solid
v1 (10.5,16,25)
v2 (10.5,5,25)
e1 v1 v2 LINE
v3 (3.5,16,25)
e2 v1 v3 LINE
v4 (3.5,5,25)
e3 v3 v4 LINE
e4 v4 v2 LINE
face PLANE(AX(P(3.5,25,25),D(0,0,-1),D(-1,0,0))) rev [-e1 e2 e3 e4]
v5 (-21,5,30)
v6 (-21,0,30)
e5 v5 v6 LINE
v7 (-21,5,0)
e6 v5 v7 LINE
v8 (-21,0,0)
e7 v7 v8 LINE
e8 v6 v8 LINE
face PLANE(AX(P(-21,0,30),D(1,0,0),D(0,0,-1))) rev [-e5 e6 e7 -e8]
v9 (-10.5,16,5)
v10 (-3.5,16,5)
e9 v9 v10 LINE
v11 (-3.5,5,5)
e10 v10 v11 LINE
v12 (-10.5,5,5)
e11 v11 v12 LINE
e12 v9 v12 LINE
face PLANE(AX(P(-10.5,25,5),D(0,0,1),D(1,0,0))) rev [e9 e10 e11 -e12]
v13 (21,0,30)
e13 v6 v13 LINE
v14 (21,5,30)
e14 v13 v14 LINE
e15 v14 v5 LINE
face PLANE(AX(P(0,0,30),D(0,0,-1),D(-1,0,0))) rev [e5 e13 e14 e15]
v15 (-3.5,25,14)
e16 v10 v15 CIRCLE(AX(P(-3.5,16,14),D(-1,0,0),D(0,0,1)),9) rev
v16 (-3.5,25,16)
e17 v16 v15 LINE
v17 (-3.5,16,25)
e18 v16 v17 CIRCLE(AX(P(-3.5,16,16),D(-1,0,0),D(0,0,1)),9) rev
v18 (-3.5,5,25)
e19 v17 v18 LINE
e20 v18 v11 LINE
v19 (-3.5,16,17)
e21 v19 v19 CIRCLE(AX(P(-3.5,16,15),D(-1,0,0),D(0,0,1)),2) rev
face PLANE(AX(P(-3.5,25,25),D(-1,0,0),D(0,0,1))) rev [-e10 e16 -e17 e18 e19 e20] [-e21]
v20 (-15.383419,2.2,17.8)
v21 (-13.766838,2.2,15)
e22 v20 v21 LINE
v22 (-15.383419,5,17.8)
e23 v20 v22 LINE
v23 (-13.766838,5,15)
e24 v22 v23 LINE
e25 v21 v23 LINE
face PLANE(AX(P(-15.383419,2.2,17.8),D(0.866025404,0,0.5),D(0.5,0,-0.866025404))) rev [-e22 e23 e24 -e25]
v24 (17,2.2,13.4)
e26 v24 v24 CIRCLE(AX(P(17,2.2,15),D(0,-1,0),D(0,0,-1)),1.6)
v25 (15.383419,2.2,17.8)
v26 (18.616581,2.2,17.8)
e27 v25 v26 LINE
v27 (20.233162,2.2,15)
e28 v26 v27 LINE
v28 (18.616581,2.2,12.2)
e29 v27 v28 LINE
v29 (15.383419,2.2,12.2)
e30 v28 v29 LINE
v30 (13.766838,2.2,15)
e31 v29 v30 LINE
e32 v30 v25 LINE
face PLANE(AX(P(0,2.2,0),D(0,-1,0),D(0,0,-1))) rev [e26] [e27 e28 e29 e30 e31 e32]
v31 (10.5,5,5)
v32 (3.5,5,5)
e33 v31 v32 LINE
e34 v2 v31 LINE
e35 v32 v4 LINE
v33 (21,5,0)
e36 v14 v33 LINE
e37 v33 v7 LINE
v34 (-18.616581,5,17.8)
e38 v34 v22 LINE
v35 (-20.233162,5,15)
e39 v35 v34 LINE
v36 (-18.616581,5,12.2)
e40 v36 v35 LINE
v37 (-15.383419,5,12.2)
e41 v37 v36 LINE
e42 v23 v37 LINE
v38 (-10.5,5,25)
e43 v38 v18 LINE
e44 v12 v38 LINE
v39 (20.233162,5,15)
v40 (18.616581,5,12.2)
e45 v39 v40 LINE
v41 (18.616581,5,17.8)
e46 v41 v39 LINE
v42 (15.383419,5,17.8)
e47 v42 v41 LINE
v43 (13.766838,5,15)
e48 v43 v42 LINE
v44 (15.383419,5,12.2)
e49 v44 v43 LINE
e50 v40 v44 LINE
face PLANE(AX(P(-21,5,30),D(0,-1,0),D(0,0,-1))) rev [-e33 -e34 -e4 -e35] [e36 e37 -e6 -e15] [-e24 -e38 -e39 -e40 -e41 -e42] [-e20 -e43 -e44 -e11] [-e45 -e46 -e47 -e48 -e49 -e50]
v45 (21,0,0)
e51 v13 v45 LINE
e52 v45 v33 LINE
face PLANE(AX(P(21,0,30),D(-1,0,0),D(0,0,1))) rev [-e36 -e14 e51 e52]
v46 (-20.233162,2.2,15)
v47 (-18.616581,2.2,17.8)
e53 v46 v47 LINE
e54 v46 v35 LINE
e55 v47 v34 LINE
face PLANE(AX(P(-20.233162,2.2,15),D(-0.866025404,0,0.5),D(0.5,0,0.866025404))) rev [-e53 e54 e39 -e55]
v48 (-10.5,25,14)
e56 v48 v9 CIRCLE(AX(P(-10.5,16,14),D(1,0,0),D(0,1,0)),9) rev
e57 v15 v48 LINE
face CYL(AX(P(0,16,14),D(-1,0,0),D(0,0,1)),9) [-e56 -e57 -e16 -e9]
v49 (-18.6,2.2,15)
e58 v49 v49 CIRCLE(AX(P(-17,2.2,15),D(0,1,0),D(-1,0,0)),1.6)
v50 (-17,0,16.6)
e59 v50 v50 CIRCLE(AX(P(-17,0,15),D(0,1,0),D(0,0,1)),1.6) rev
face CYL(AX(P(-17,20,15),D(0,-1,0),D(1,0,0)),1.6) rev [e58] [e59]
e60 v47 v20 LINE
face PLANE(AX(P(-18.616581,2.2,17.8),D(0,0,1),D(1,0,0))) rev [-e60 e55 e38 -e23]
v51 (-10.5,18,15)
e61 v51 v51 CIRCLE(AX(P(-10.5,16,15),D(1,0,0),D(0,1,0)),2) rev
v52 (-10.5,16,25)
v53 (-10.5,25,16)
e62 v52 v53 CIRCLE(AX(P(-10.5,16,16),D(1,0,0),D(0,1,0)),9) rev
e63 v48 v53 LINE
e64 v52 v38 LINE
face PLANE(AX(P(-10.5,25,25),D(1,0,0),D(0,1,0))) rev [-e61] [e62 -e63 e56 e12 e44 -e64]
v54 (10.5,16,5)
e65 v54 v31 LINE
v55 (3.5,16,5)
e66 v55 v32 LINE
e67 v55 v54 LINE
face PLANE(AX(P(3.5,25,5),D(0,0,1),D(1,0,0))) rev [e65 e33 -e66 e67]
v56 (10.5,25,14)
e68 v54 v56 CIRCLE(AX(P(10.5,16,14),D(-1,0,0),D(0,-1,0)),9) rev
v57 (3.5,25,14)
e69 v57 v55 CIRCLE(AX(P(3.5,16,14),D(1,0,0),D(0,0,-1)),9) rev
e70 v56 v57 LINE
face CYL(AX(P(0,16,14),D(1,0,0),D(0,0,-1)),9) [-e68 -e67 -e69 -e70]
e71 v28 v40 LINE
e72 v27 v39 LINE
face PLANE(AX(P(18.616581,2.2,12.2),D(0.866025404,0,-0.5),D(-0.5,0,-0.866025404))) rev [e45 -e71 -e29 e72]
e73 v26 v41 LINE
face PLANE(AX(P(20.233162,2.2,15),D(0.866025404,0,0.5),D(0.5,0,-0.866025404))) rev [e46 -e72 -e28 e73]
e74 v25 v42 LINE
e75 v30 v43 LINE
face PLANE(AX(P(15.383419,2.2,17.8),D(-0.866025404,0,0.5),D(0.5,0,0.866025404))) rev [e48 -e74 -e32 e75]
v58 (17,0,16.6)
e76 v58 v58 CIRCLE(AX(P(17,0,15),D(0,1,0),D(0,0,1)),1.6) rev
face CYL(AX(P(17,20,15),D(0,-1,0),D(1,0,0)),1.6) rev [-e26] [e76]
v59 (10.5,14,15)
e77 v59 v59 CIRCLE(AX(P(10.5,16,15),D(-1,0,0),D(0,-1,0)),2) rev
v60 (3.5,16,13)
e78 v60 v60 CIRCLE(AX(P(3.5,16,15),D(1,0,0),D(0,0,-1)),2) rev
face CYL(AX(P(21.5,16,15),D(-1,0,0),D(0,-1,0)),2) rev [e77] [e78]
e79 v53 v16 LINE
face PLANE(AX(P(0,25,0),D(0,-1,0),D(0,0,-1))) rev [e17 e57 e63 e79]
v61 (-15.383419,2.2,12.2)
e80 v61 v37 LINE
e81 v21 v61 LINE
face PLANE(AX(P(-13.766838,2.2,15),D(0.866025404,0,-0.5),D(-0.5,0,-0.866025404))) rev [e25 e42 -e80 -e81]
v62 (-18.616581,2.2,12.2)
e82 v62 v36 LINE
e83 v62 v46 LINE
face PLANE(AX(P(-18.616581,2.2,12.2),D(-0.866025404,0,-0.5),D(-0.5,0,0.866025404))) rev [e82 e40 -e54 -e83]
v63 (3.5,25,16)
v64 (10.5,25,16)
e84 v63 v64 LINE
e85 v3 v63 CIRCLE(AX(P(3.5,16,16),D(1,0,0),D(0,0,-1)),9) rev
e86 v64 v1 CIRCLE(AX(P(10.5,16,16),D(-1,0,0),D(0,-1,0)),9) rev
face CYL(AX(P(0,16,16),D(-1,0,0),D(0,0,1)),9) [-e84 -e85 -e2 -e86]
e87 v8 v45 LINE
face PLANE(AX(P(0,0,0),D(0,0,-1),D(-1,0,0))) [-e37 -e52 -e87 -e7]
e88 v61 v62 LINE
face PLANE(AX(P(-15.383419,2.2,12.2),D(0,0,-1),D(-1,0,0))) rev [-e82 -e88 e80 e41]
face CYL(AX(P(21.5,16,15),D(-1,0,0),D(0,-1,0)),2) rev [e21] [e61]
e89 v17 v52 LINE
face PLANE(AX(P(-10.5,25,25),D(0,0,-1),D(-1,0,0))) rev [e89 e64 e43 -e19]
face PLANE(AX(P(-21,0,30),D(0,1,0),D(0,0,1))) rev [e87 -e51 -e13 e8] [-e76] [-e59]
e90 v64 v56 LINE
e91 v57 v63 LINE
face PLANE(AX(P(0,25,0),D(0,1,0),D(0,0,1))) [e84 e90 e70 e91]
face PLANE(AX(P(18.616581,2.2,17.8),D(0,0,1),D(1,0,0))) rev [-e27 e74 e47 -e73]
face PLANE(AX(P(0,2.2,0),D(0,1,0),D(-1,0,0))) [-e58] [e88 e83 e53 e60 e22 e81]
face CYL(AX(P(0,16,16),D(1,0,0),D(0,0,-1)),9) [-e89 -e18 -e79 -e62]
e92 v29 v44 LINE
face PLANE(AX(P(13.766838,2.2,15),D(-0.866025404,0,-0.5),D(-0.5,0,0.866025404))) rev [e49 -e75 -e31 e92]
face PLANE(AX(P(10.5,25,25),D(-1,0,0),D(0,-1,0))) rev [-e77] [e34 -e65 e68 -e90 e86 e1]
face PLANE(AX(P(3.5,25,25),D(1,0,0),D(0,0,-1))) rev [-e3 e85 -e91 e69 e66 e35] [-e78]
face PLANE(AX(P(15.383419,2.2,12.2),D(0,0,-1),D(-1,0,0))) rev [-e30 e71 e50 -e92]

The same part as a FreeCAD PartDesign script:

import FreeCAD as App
import Part
import Sketcher

V = App.Vector
Q = App.Units.Quantity


def edges_at(feature, points):
    """Names of the edges that pass closest to the given points."""
    edges = feature.Shape.Edges
    near = lambda p: min(range(len(edges)), key=lambda i: edges[i].distToShape(Part.Vertex(*p))[0])
    return sorted({f"Edge{near(p) + 1}" for p in points})


def add_polygon(sketch, points):
    """Adds a closed chain of lines whose ends are joined by coincident constraints."""
    first, n = sketch.GeometryCount, len(points)
    for a, b in zip(points, points[1:] + points[:1]):
        sketch.addGeometry(Part.LineSegment(App.Vector(*a, 0), App.Vector(*b, 0)), False)
    for i in range(n):
        sketch.addConstraint(Sketcher.Constraint("Coincident", first + i, 2, first + (i + 1) % n, 1))

doc = App.newDocument("Part")
body = doc.addObject("PartDesign::Body", "Body")

sketch1 = doc.addObject("Sketcher::SketchObject", "Sketch")
body.addObject(sketch1)
sketch1.AttachmentSupport = (doc.XY_Plane, [""])
sketch1.MapMode = "FlatFace"
add_polygon(sketch1, [(-21, 5), (-21, 0), (21, 0), (21, 5)])
sketch1.addConstraint(Sketcher.Constraint("Vertical", 0))
sketch1.addConstraint(Sketcher.Constraint("Horizontal", 1))
sketch1.addConstraint(Sketcher.Constraint("Vertical", 2))
sketch1.addConstraint(Sketcher.Constraint("Horizontal", 3))
sketch1.addConstraint(Sketcher.Constraint("Symmetric", 0, 2, 1, 2, -1, 1))
sketch1.addConstraint(Sketcher.Constraint("DistanceX", 1, 1, 1, 2, Q("42 mm")))
sketch1.addConstraint(Sketcher.Constraint("DistanceY", 0, 2, 0, 1, Q("5 mm")))
pad1 = doc.addObject("PartDesign::Pad", "Pad")
body.addObject(pad1)
pad1.Profile = sketch1
pad1.Length = 30

sketch2 = doc.addObject("Sketcher::SketchObject", "Sketch001")
body.addObject(sketch2)
sketch2.AttachmentSupport = (doc.XZ_Plane, [""])
sketch2.MapMode = "FlatFace"
sketch2.AttachmentOffset = App.Placement(V(0, 0, -5), App.Rotation())
sketch2.addGeometry(Part.Circle(V(-17, 15, 0), V(0, 0, 1), 1.6), False)
sketch2.addGeometry(Part.Circle(V(17, 15, 0), V(0, 0, 1), 1.6), False)
sketch2.addConstraint(Sketcher.Constraint("Equal", 0, 1))
sketch2.addConstraint(Sketcher.Constraint("Symmetric", 0, 3, 1, 3, -2))
sketch2.addConstraint(Sketcher.Constraint("Diameter", 0, Q("3.2 mm")))
sketch2.addConstraint(Sketcher.Constraint("DistanceX", 0, 3, -1, 1, Q("17 mm")))
sketch2.addConstraint(Sketcher.Constraint("DistanceY", -1, 1, 0, 3, Q("15 mm")))
pocket1 = doc.addObject("PartDesign::Pocket", "Pocket")
body.addObject(pocket1)
pocket1.Profile = sketch2
pocket1.Type = "ThroughAll"
pocket1.Midplane = True

sketch3 = doc.addObject("Sketcher::SketchObject", "Sketch002")
body.addObject(sketch3)
sketch3.AttachmentSupport = (doc.XZ_Plane, [""])
sketch3.MapMode = "FlatFace"
sketch3.AttachmentOffset = App.Placement(V(0, 0, -5), App.Rotation())
add_polygon(sketch3, [(13.8, 15), (15.4, 17.8), (18.6, 17.8), (20.2, 15), (18.6, 12.2), (15.4, 12.2)])
add_polygon(sketch3, [(-13.8, 15), (-15.4, 12.2), (-18.6, 12.2), (-20.2, 15), (-18.6, 17.8), (-15.4, 17.8)])
sketch3.addConstraint(Sketcher.Constraint("Horizontal", 1))
sketch3.addConstraint(Sketcher.Constraint("Horizontal", 4))
sketch3.addConstraint(Sketcher.Constraint("Horizontal", 7))
sketch3.addConstraint(Sketcher.Constraint("Horizontal", 10))
sketch3.addConstraint(Sketcher.Constraint("Symmetric", 4, 2, 6, 2, -2))
sketch3.addConstraint(Sketcher.Constraint("Symmetric", 2, 2, 8, 2, -2))
sketch3.addConstraint(Sketcher.Constraint("Symmetric", 1, 2, 9, 2, -2))
sketch3.addConstraint(Sketcher.Constraint("Symmetric", 5, 2, 11, 2, -2))
sketch3.addConstraint(Sketcher.Constraint("Parallel", 0, 3))
sketch3.addConstraint(Sketcher.Constraint("Parallel", 2, 5))
sketch3.addConstraint(Sketcher.Constraint("Parallel", 3, 6))
sketch3.addConstraint(Sketcher.Constraint("Parallel", 5, 8))
sketch3.addConstraint(Sketcher.Constraint("Parallel", 8, 11))
sketch3.addConstraint(Sketcher.Constraint("Horizontal", 2, 2, 5, 2))
sketch3.addConstraint(Sketcher.Constraint("Vertical", 1, 2, 3, 2))
sketch3.addConstraint(Sketcher.Constraint("Angle", 0, Q("60 deg")))
sketch3.addConstraint(Sketcher.Constraint("DistanceY", -1, 1, 2, 2, Q("15 mm")))
sketch3.addConstraint(Sketcher.Constraint("DistanceX", 6, 2, 3, 2, Q("34 mm")))
sketch3.addConstraint(Sketcher.Constraint("DistanceY", -1, 1, 0, 2, Q("17.8 mm")))
sketch3.addConstraint(Sketcher.Constraint("DistanceX", 1, 1, 1, 2, Q("3.233162 mm")))
pocket2 = doc.addObject("PartDesign::Pocket", "Pocket001")
body.addObject(pocket2)
pocket2.Profile = sketch3
pocket2.Length = 2.8
pocket2.Reversed = True

sketch4 = doc.addObject("Sketcher::SketchObject", "Sketch003")
body.addObject(sketch4)
sketch4.AttachmentSupport = (doc.XZ_Plane, [""])
sketch4.MapMode = "FlatFace"
sketch4.AttachmentOffset = App.Placement(V(0, 0, -5), App.Rotation())
add_polygon(sketch4, [(-10, 5), (-10, 25), (-4, 25), (-4, 5)])
add_polygon(sketch4, [(4, 5), (4, 25), (10, 25), (10, 5)])
sketch4.addConstraint(Sketcher.Constraint("Vertical", 0))
sketch4.addConstraint(Sketcher.Constraint("Horizontal", 1))
sketch4.addConstraint(Sketcher.Constraint("Vertical", 2))
sketch4.addConstraint(Sketcher.Constraint("Horizontal", 3))
sketch4.addConstraint(Sketcher.Constraint("Vertical", 4))
sketch4.addConstraint(Sketcher.Constraint("Horizontal", 5))
sketch4.addConstraint(Sketcher.Constraint("Vertical", 6))
sketch4.addConstraint(Sketcher.Constraint("Horizontal", 7))
sketch4.addConstraint(Sketcher.Constraint("Symmetric", 1, 2, 4, 2, -2))
sketch4.addConstraint(Sketcher.Constraint("Symmetric", 3, 2, 6, 2, -2))
sketch4.addConstraint(Sketcher.Constraint("DistanceX", 1, 1, 1, 2, Q("7 mm")))
sketch4.addConstraint(Sketcher.Constraint("DistanceY", 0, 1, 0, 2, Q("20 mm")))
sketch4.addConstraint(Sketcher.Constraint("DistanceY", -1, 1, 0, 2, Q("25 mm")))
sketch4.addConstraint(Sketcher.Constraint("DistanceX", 1, 2, 4, 2, Q("7 mm")))
pad2 = doc.addObject("PartDesign::Pad", "Pad001")
body.addObject(pad2)
pad2.Profile = sketch4
pad2.Length = 20
pad2.Reversed = True
doc.recompute()

fillet = doc.addObject("PartDesign::Fillet", "Fillet")
body.addObject(fillet)
fillet.Base = (pad2, edges_at(pad2, [
    (7, 25, 5),
    (7, 25, 25),
    (-7, 25, 25),
    (-7, 25, 5),
]))
fillet.Radius = 9

sketch5 = doc.addObject("Sketcher::SketchObject", "Sketch004")
body.addObject(sketch5)
sketch5.AttachmentSupport = (doc.YZ_Plane, [""])
sketch5.MapMode = "FlatFace"
sketch5.AttachmentOffset = App.Placement(V(0, 0, 10.5), App.Rotation())
sketch5.addGeometry(Part.Circle(V(16, 15, 0), V(0, 0, 1), 2), False)
sketch5.addConstraint(Sketcher.Constraint("Diameter", 0, Q("4 mm")))
sketch5.addConstraint(Sketcher.Constraint("DistanceX", -1, 1, 0, 3, Q("16 mm")))
sketch5.addConstraint(Sketcher.Constraint("DistanceY", -1, 1, 0, 3, Q("15 mm")))
pocket3 = doc.addObject("PartDesign::Pocket", "Pocket002")
body.addObject(pocket3)
pocket3.Profile = sketch5
pocket3.Type = "ThroughAll"
pocket3.Midplane = True

doc.recompute()
